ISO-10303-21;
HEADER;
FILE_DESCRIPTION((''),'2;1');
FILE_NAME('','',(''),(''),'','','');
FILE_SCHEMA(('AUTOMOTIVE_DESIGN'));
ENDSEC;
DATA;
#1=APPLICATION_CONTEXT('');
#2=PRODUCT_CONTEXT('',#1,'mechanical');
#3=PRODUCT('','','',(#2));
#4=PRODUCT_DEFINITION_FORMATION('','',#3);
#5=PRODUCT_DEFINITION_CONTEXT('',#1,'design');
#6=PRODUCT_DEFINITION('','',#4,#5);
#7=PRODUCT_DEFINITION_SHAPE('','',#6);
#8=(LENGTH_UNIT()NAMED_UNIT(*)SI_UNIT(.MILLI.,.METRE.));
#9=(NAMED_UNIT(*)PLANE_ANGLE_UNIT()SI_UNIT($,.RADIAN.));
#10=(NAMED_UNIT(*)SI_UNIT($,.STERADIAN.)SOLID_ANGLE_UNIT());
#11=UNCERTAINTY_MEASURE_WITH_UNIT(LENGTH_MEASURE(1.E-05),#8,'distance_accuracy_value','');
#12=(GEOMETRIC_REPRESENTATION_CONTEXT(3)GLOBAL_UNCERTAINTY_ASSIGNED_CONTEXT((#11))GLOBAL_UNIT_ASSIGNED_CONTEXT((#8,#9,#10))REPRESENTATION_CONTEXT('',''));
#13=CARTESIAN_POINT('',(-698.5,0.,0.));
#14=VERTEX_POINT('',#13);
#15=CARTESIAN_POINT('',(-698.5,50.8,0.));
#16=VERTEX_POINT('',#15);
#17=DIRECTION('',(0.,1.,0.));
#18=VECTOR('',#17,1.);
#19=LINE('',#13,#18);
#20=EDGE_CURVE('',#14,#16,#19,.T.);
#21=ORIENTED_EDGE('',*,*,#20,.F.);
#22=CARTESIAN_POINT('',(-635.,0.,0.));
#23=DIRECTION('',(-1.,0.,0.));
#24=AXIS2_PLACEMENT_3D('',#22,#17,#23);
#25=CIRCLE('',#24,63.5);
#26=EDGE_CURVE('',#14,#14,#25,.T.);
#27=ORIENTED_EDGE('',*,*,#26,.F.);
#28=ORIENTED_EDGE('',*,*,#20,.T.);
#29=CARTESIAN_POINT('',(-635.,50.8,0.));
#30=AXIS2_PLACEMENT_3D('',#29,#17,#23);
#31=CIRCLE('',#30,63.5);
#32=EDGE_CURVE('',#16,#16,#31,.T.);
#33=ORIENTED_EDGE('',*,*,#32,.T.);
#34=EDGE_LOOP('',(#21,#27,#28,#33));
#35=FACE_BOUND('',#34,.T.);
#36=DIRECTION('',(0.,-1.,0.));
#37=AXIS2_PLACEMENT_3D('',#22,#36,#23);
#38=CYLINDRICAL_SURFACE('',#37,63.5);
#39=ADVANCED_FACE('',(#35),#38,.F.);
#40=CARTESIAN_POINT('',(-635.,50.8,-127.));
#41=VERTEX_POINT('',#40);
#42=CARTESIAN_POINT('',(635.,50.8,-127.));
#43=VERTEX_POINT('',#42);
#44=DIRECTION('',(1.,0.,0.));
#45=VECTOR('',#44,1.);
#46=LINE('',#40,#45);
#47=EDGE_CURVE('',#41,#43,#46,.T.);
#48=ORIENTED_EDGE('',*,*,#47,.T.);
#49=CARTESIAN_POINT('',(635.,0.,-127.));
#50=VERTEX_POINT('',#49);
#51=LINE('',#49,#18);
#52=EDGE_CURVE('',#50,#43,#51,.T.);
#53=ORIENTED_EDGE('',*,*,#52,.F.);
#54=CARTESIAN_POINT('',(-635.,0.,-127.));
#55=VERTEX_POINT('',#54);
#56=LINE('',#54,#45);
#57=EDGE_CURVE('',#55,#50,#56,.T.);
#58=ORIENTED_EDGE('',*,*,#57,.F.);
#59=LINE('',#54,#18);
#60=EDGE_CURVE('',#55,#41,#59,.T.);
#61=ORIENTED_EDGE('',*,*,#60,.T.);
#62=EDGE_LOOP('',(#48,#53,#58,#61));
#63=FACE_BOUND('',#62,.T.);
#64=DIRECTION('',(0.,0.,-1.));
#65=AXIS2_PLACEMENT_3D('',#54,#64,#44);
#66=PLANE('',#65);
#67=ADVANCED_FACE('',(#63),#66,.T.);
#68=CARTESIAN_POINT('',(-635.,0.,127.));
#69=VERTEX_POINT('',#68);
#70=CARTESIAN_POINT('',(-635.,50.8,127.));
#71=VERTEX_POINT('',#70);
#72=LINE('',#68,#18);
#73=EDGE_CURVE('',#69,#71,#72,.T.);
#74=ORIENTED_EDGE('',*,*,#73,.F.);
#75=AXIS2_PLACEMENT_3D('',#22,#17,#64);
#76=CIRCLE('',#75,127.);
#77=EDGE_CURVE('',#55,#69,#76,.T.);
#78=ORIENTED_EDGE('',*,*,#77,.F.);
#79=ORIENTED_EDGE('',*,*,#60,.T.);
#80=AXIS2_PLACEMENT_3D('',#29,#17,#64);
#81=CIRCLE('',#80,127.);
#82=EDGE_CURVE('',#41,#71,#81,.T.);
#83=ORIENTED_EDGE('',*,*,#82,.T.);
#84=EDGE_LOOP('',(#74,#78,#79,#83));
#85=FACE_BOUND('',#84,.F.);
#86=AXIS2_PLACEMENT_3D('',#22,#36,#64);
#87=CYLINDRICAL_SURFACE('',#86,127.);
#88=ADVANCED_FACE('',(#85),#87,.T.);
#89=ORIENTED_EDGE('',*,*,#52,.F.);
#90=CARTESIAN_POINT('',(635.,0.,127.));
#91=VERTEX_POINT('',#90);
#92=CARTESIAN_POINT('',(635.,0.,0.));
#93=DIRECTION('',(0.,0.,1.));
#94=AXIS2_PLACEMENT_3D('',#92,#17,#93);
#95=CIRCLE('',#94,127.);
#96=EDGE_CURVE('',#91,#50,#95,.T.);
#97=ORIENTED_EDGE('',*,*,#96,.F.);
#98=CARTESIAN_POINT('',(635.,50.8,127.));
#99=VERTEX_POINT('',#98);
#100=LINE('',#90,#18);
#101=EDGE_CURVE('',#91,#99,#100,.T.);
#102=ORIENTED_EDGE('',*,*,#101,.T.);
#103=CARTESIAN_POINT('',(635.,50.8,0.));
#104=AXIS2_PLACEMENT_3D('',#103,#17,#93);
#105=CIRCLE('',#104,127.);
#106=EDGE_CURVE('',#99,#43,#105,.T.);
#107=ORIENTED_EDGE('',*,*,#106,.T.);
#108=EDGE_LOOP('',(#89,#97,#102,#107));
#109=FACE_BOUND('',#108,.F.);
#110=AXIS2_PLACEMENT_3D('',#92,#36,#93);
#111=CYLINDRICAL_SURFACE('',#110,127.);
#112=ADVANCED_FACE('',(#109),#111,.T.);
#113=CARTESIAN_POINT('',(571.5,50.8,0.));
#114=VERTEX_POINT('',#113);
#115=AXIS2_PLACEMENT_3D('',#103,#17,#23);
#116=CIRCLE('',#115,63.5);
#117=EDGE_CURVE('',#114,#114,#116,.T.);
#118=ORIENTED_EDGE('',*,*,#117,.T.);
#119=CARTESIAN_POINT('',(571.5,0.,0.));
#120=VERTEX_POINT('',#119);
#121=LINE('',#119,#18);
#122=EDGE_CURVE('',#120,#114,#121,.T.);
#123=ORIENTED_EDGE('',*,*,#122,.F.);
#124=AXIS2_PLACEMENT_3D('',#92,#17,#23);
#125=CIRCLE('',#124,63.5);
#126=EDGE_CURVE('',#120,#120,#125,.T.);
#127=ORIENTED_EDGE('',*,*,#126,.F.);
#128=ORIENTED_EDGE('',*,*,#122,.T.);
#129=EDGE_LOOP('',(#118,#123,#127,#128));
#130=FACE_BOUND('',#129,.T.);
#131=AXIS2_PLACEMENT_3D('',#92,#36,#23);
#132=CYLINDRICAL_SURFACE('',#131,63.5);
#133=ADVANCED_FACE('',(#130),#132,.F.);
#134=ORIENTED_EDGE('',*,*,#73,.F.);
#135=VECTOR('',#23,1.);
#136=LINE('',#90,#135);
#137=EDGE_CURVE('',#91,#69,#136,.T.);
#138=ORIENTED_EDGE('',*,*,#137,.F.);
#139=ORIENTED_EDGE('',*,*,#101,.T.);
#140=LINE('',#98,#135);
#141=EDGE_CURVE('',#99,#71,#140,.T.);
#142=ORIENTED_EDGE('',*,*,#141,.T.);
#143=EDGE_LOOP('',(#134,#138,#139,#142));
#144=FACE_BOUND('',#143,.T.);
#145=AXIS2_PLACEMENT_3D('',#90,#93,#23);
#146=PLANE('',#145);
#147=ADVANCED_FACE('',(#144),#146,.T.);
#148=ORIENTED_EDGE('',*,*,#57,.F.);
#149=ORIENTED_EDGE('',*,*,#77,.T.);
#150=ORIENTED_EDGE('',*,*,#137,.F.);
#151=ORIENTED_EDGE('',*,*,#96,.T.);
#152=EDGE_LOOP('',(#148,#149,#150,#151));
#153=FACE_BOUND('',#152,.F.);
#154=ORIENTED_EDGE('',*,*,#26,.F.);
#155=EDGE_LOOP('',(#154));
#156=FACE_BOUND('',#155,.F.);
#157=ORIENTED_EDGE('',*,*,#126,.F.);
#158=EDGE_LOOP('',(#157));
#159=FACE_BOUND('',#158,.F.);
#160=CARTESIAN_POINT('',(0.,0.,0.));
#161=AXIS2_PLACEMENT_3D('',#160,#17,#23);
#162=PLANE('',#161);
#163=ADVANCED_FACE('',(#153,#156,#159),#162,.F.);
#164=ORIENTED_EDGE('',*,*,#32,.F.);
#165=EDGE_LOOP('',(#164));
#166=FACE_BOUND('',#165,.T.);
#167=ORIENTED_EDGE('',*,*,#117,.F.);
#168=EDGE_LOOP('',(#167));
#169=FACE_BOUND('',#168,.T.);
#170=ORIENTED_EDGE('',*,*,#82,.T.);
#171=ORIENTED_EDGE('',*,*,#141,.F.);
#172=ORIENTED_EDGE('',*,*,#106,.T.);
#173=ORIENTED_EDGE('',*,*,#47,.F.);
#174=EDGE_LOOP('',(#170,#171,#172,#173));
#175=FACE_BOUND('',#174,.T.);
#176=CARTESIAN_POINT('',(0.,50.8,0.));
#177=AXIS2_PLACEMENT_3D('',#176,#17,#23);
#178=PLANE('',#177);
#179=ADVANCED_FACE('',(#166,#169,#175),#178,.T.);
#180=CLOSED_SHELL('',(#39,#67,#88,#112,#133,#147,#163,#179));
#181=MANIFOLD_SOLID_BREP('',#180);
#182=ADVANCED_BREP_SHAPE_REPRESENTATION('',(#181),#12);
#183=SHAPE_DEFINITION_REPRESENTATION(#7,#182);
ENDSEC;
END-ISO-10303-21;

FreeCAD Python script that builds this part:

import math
import FreeCAD as App
import Part
import Sketcher
from FreeCAD import Vector
Q = App.Units.Quantity

doc = App.newDocument("Part")
body = doc.addObject("PartDesign::Body", "Body")

# Sketch on XZ plane
sketch1 = doc.addObject("Sketcher::SketchObject", "Sketch")
body.addObject(sketch1)
sketch1.AttachmentSupport = (doc.XZ_Plane, [""])
sketch1.MapMode = "FlatFace"
sketch1.addGeometry(Part.LineSegment(Vector(-635, 127, 0), Vector(635, 127, 0)), False)
sketch1.addGeometry(Part.ArcOfCircle(Part.Circle(Vector(635, 0, 0), Vector(0, 0, 1), 127), math.radians(-90), math.radians(90)), False)
sketch1.addGeometry(Part.LineSegment(Vector(635, -127, 0), Vector(-635, -127, 0)), False)
sketch1.addGeometry(Part.ArcOfCircle(Part.Circle(Vector(-635, 0, 0), Vector(0, 0, 1), 127), math.radians(90), math.radians(270)), False)
sketch1.addGeometry(Part.Circle(Vector(635, 0, 0), Vector(0, 0, 1), 63.5), False)
sketch1.addGeometry(Part.Circle(Vector(-635, 0, 0), Vector(0, 0, 1), 63.5), False)
sketch1.addConstraint(Sketcher.Constraint("Tangent", 0, 2, 1, 2))
sketch1.addConstraint(Sketcher.Constraint("Tangent", 1, 1, 2, 1))
sketch1.addConstraint(Sketcher.Constraint("Tangent", 2, 2, 3, 2))
sketch1.addConstraint(Sketcher.Constraint("Tangent", 3, 1, 0, 1))
sketch1.addConstraint(Sketcher.Constraint("Horizontal", 0))
sketch1.addConstraint(Sketcher.Constraint("Horizontal", 2))
sketch1.addConstraint(Sketcher.Constraint("Coincident", 4, 3, 1, 3))
sketch1.addConstraint(Sketcher.Constraint("Coincident", 5, 3, 3, 3))
sketch1.addConstraint(Sketcher.Constraint("Equal", 4, 5))
sketch1.addConstraint(Sketcher.Constraint("Symmetric", 1, 3, 3, 3, -1, 1))
sketch1.addConstraint(Sketcher.Constraint("Diameter", 4, Q("5 in")))
sketch1.addConstraint(Sketcher.Constraint("Radius", 1, Q("5 in")))
sketch1.addConstraint(Sketcher.Constraint("DistanceX", 0, 1, 0, 2, Q("50 in")))
pad1 = doc.addObject("PartDesign::Pad", "Pad")
body.addObject(pad1)
pad1.Profile = sketch1
pad1.Length = Q("2 in")
pad1.Reversed = True

doc.recompute()
